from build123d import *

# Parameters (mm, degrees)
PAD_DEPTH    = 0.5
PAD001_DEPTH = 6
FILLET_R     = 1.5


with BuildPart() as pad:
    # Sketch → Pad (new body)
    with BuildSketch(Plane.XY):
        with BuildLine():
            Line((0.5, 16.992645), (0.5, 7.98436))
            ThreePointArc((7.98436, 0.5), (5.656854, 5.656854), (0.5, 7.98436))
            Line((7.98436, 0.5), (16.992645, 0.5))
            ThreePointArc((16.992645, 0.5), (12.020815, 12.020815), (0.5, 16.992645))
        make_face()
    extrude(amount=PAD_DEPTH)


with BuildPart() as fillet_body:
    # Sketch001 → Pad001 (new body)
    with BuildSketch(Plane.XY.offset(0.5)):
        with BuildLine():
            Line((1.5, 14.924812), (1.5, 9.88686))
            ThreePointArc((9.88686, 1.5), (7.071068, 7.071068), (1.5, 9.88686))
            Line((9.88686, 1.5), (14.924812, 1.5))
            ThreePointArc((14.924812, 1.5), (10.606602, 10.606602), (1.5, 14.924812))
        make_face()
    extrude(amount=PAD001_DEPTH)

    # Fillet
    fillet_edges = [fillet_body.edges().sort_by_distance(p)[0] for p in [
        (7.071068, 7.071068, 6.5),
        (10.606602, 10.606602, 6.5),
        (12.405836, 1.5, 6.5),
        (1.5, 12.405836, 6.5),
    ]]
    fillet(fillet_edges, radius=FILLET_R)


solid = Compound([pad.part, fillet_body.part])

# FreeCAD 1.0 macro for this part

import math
import FreeCAD as App
import Part
import Sketcher
from FreeCAD import Vector


def edges_at(feature, points):
    """Names of the edges that pass closest to the given points."""
    edges = feature.Shape.Edges
    near = lambda p: min(range(len(edges)), key=lambda i: edges[i].distToShape(Part.Vertex(*p))[0])
    return sorted({f"Edge{near(p) + 1}" for p in points})

doc = App.newDocument("Part")
body = doc.addObject("PartDesign::Body", "Body")

# Sketch on XY plane
sketch1 = doc.addObject("Sketcher::SketchObject", "Sketch")
body.addObject(sketch1)
sketch1.AttachmentSupport = (doc.XY_Plane, [""])
sketch1.MapMode = "FlatFace"
sketch1.addGeometry(Part.LineSegment(Vector(0.5, 16.992645, 0), Vector(0.5, 7.98436, 0)), False)
sketch1.addGeometry(Part.ArcOfCircle(Part.Circle(Vector(-0.000002, -0.000002, 0), Vector(0, 0, 1), 8.000002), math.radians(3.583334), math.radians(86.416666)), False)
sketch1.addGeometry(Part.LineSegment(Vector(7.98436, 0.5, 0), Vector(16.992645, 0.5, 0)), False)
sketch1.addGeometry(Part.ArcOfCircle(Part.Circle(Vector(0, 0, 0), Vector(0, 0, 1), 16.999999), math.radians(1.685412), math.radians(88.314588)), False)
sketch1.addConstraint(Sketcher.Constraint("Coincident", 0, 2, 1, 2))
sketch1.addConstraint(Sketcher.Constraint("Coincident", 1, 1, 2, 1))
sketch1.addConstraint(Sketcher.Constraint("Coincident", 2, 2, 3, 1))
sketch1.addConstraint(Sketcher.Constraint("Coincident", 3, 2, 0, 1))
sketch1.addConstraint(Sketcher.Constraint("Vertical", 0))
sketch1.addConstraint(Sketcher.Constraint("Horizontal", 2))
sketch1.addConstraint(Sketcher.Constraint("Coincident", 1, 3, -1, 1))
sketch1.addConstraint(Sketcher.Constraint("Coincident", 3, 3, -1, 1))
sketch1.addConstraint(Sketcher.Constraint("Equal", 2, 0))
sketch1.addConstraint(Sketcher.Constraint("Radius", 3, 16.999999))
sketch1.addConstraint(Sketcher.Constraint("DistanceX", -1, 1, 0, 2, 0.5))
sketch1.addConstraint(Sketcher.Constraint("Radius", 1, 8.000002))
pad1 = doc.addObject("PartDesign::Pad", "Pad")
body.addObject(pad1)
pad1.Profile = sketch1
pad1.Length = 0.5
body2 = doc.addObject("PartDesign::Body", "Body001")

# Sketch on XY plane
sketch2 = doc.addObject("Sketcher::SketchObject", "Sketch001")
body2.addObject(sketch2)
sketch2.AttachmentSupport = (doc.getObject("XY_Plane001"), [""])
sketch2.MapMode = "FlatFace"
sketch2.AttachmentOffset = App.Placement(Vector(0, 0, 0.5), App.Rotation())
sketch2.addGeometry(Part.LineSegment(Vector(2, 15, 0), Vector(2, 10, 0)), False)
sketch2.addGeometry(Part.ArcOfCircle(Part.Circle(Vector(0, 0, 0), Vector(0, 0, 1), 10), math.radians(9), math.radians(81)), False)
sketch2.addGeometry(Part.LineSegment(Vector(10, 2, 0), Vector(15, 2, 0)), False)
sketch2.addGeometry(Part.ArcOfCircle(Part.Circle(Vector(0, 0, 0), Vector(0, 0, 1), 15), math.radians(6), math.radians(84)), False)
sketch2.addConstraint(Sketcher.Constraint("Coincident", 0, 2, 1, 2))
sketch2.addConstraint(Sketcher.Constraint("Coincident", 1, 1, 2, 1))
sketch2.addConstraint(Sketcher.Constraint("Coincident", 2, 2, 3, 1))
sketch2.addConstraint(Sketcher.Constraint("Coincident", 3, 2, 0, 1))
sketch2.addConstraint(Sketcher.Constraint("Vertical", 0))
sketch2.addConstraint(Sketcher.Constraint("Horizontal", 2))
sketch2.addConstraint(Sketcher.Constraint("Coincident", 1, 3, -1, 1))
sketch2.addConstraint(Sketcher.Constraint("Coincident", 3, 3, -1, 1))
sketch2.addConstraint(Sketcher.Constraint("Equal", 2, 0))
sketch2.addConstraint(Sketcher.Constraint("Radius", 1, 9.999999))
sketch2.addConstraint(Sketcher.Constraint("Radius", 3, 15.000001))
sketch2.addConstraint(Sketcher.Constraint("DistanceX", -1, 1, 0, 2, 1.5))
pad2 = doc.addObject("PartDesign::Pad", "Pad001")
body2.addObject(pad2)
pad2.Profile = sketch2
pad2.Length = 6
doc.recompute()

fillet = doc.addObject("PartDesign::Fillet", "Fillet")
body2.addObject(fillet)
fillet.Base = (pad2, edges_at(pad2, [
    (7.071, 7.071, 6.5),
    (10.607, 10.607, 6.5),
    (12.406, 1.5, 6.5),
    (1.5, 12.406, 6.5),
]))
fillet.Radius = 1.5

doc.recompute()
